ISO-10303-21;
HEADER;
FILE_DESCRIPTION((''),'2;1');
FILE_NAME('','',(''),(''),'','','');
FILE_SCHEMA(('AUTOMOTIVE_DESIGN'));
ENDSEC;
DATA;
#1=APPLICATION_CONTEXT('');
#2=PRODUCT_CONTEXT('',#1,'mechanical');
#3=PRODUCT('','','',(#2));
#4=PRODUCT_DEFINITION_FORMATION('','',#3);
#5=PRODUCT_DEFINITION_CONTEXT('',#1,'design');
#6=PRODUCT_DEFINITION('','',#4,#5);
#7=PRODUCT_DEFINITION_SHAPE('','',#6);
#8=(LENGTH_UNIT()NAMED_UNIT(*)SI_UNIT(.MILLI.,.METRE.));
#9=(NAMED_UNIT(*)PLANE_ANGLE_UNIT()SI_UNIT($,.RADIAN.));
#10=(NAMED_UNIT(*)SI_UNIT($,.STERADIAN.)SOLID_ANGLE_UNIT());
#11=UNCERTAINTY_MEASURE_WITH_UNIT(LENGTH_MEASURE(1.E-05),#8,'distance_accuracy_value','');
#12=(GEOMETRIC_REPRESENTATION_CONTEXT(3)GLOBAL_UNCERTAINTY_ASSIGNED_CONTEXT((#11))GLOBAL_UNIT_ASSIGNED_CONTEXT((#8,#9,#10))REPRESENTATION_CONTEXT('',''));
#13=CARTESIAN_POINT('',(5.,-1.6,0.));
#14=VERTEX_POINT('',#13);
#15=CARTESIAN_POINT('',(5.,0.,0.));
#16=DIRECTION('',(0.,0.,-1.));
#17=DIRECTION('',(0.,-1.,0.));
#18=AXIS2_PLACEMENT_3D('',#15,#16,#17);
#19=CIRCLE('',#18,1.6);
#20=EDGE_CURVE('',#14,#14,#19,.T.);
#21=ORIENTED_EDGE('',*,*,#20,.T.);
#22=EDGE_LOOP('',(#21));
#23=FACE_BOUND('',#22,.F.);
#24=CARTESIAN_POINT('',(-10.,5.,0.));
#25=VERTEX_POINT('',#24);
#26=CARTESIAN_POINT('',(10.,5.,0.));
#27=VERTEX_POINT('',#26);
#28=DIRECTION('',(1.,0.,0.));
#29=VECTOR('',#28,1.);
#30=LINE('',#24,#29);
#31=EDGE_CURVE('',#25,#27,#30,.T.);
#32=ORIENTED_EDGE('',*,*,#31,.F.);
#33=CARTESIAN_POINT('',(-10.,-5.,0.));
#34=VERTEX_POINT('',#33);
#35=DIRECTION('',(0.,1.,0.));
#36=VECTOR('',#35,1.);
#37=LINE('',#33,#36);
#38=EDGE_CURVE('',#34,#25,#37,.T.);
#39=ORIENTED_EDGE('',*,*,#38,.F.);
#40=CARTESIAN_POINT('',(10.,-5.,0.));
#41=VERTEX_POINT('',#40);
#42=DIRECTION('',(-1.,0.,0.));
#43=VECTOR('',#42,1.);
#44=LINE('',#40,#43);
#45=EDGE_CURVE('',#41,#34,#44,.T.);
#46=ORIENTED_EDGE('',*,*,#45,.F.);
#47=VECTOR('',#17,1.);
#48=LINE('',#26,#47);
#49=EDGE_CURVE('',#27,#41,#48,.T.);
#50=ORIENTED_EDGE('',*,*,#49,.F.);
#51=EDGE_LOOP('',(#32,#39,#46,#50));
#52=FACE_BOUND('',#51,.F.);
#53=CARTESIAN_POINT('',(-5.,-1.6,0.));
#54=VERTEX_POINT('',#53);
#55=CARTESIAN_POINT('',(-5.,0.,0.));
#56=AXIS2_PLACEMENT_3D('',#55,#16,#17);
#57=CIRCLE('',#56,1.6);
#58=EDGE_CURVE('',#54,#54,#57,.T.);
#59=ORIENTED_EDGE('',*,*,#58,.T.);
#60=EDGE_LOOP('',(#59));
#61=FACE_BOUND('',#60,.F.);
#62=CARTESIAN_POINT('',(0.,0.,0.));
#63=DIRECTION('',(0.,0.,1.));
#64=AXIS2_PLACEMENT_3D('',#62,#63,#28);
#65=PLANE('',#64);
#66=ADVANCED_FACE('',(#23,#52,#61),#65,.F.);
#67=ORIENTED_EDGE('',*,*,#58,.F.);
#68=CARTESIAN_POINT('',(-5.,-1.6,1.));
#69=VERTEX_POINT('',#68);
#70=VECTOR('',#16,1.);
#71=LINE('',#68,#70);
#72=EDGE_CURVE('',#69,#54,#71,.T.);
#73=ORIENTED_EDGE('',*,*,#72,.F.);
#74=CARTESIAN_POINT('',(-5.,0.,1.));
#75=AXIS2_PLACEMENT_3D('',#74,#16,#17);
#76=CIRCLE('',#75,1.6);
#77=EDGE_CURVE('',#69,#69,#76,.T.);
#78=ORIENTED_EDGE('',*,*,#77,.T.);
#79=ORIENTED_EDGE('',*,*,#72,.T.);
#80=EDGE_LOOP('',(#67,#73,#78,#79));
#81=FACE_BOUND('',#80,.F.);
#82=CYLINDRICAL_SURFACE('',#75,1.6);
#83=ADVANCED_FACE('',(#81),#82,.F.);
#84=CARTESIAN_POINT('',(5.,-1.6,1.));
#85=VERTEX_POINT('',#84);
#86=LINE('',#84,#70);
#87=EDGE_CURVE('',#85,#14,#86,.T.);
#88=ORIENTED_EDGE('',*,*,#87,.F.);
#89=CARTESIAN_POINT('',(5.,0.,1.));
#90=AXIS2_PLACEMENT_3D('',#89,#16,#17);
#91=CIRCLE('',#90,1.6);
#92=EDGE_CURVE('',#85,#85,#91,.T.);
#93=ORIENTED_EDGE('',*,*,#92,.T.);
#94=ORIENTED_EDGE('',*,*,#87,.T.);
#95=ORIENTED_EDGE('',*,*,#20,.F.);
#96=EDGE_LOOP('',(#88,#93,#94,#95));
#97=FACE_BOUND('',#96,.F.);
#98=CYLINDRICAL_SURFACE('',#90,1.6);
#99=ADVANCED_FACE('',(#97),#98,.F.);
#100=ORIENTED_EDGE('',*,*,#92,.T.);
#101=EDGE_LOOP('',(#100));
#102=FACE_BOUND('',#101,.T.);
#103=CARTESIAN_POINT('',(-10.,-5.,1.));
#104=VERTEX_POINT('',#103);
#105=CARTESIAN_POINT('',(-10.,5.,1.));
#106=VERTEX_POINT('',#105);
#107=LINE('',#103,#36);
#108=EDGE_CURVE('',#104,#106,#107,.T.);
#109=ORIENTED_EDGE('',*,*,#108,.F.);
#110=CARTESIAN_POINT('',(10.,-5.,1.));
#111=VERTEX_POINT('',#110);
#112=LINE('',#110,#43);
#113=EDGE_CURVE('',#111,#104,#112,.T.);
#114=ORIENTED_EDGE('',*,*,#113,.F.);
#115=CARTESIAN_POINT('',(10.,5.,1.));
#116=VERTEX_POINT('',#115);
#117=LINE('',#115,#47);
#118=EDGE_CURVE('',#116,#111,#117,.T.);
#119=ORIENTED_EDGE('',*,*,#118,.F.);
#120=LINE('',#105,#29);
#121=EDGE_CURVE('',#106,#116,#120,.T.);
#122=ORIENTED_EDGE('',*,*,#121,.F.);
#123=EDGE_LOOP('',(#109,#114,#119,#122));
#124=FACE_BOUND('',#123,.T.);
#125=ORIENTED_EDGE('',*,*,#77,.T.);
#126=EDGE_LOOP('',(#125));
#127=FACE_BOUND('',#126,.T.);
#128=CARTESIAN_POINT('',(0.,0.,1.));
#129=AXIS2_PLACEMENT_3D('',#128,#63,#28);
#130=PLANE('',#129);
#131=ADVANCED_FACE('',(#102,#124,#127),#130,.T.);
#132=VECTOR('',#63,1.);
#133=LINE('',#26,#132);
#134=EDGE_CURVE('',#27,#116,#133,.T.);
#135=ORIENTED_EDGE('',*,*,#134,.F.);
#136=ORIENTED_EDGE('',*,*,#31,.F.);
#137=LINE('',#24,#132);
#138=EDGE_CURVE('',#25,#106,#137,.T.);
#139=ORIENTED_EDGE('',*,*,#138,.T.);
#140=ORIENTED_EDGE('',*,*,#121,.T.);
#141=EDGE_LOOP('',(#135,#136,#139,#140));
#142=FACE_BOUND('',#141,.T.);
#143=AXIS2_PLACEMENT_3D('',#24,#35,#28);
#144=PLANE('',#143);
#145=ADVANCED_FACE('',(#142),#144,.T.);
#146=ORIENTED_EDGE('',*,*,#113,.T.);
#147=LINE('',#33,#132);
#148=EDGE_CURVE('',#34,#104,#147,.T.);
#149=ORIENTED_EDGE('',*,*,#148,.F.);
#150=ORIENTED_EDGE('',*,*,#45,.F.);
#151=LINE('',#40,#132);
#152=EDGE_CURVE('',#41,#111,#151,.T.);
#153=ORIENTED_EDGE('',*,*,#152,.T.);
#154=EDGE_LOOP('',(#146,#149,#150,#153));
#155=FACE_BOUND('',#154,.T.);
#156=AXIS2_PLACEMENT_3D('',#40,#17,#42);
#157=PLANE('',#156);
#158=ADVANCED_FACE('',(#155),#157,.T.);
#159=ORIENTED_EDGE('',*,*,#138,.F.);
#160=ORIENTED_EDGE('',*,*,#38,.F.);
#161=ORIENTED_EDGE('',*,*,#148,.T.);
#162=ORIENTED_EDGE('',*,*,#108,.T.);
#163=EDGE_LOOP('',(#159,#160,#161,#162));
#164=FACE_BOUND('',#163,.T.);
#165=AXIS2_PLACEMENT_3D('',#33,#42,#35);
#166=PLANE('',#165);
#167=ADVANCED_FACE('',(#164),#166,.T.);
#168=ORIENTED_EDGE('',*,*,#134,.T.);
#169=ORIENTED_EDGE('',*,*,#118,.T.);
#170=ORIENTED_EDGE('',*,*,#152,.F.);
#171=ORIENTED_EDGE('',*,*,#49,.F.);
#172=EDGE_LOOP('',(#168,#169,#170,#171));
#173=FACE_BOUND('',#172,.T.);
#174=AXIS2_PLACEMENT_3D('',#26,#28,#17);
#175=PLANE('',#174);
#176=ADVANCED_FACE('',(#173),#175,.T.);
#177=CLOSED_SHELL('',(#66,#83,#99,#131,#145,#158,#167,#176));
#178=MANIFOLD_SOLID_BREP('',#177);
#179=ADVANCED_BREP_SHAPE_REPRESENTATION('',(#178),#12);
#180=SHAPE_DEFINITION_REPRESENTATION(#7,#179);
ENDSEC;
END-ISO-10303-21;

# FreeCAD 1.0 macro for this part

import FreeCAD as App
import Part
import Sketcher

V = App.Vector

doc = App.newDocument("Part")
body = doc.addObject("PartDesign::Body", "Body")

# Sketch on XY plane
sketch1 = doc.addObject("Sketcher::SketchObject", "Sketch")
body.addObject(sketch1)
sketch1.AttachmentSupport = (doc.XY_Plane, [""])
sketch1.MapMode = "FlatFace"
sketch1.addGeometry(Part.LineSegment(V(10, 5, 0), V(-10, 5, 0)), False)
sketch1.addGeometry(Part.LineSegment(V(-10, 5, 0), V(-10, -5, 0)), False)
sketch1.addGeometry(Part.LineSegment(V(-10, -5, 0), V(10, -5, 0)), False)
sketch1.addGeometry(Part.LineSegment(V(10, -5, 0), V(10, 5, 0)), False)
sketch1.addConstraint(Sketcher.Constraint("Coincident", 0, 2, 1, 1))
sketch1.addConstraint(Sketcher.Constraint("Coincident", 1, 2, 2, 1))
sketch1.addConstraint(Sketcher.Constraint("Coincident", 2, 2, 3, 1))
sketch1.addConstraint(Sketcher.Constraint("Coincident", 3, 2, 0, 1))
sketch1.addConstraint(Sketcher.Constraint("Horizontal", 0))
sketch1.addConstraint(Sketcher.Constraint("Vertical", 1))
sketch1.addConstraint(Sketcher.Constraint("Horizontal", 2))
sketch1.addConstraint(Sketcher.Constraint("Vertical", 3))
sketch1.addConstraint(Sketcher.Constraint("Symmetric", 0, 2, 2, 2, -1, 1))
sketch1.addConstraint(Sketcher.Constraint("DistanceX", 0, 2, 0, 1, 20.0))
sketch1.addConstraint(Sketcher.Constraint("DistanceY", 1, 2, 1, 1, 10.0))
pad1 = doc.addObject("PartDesign::Pad", "Pad")
body.addObject(pad1)
pad1.Profile = sketch1
pad1.Length = 1

# Sketch on XY plane
sketch2 = doc.addObject("Sketcher::SketchObject", "Sketch001")
body.addObject(sketch2)
sketch2.AttachmentSupport = (doc.XY_Plane, [""])
sketch2.MapMode = "FlatFace"
sketch2.AttachmentOffset = App.Placement(V(0, 0, 1), App.Rotation())
sketch2.addGeometry(Part.Circle(V(-5, 0, 0), V(0, 0, 1), 1.6), False)
sketch2.addGeometry(Part.Circle(V(5, 0, 0), V(0, 0, 1), 1.6), False)
sketch2.addConstraint(Sketcher.Constraint("Equal", 0, 1))
sketch2.addConstraint(Sketcher.Constraint("Symmetric", 0, 3, 1, 3, -1, 1))
sketch2.addConstraint(Sketcher.Constraint("PointOnObject", 0, 3, -1))
sketch2.addConstraint(Sketcher.Constraint("Diameter", 0, 3.2))
sketch2.addConstraint(Sketcher.Constraint("DistanceX", 0, 3, -1, 1, 5.0))
doc.recompute()
hole = doc.addObject("PartDesign::Hole", "Hole")
body.addObject(hole)
hole.Profile = sketch2
hole.ThreadType = "None"
hole.Diameter = 3.2
hole.DepthType = "ThroughAll"

doc.recompute()
